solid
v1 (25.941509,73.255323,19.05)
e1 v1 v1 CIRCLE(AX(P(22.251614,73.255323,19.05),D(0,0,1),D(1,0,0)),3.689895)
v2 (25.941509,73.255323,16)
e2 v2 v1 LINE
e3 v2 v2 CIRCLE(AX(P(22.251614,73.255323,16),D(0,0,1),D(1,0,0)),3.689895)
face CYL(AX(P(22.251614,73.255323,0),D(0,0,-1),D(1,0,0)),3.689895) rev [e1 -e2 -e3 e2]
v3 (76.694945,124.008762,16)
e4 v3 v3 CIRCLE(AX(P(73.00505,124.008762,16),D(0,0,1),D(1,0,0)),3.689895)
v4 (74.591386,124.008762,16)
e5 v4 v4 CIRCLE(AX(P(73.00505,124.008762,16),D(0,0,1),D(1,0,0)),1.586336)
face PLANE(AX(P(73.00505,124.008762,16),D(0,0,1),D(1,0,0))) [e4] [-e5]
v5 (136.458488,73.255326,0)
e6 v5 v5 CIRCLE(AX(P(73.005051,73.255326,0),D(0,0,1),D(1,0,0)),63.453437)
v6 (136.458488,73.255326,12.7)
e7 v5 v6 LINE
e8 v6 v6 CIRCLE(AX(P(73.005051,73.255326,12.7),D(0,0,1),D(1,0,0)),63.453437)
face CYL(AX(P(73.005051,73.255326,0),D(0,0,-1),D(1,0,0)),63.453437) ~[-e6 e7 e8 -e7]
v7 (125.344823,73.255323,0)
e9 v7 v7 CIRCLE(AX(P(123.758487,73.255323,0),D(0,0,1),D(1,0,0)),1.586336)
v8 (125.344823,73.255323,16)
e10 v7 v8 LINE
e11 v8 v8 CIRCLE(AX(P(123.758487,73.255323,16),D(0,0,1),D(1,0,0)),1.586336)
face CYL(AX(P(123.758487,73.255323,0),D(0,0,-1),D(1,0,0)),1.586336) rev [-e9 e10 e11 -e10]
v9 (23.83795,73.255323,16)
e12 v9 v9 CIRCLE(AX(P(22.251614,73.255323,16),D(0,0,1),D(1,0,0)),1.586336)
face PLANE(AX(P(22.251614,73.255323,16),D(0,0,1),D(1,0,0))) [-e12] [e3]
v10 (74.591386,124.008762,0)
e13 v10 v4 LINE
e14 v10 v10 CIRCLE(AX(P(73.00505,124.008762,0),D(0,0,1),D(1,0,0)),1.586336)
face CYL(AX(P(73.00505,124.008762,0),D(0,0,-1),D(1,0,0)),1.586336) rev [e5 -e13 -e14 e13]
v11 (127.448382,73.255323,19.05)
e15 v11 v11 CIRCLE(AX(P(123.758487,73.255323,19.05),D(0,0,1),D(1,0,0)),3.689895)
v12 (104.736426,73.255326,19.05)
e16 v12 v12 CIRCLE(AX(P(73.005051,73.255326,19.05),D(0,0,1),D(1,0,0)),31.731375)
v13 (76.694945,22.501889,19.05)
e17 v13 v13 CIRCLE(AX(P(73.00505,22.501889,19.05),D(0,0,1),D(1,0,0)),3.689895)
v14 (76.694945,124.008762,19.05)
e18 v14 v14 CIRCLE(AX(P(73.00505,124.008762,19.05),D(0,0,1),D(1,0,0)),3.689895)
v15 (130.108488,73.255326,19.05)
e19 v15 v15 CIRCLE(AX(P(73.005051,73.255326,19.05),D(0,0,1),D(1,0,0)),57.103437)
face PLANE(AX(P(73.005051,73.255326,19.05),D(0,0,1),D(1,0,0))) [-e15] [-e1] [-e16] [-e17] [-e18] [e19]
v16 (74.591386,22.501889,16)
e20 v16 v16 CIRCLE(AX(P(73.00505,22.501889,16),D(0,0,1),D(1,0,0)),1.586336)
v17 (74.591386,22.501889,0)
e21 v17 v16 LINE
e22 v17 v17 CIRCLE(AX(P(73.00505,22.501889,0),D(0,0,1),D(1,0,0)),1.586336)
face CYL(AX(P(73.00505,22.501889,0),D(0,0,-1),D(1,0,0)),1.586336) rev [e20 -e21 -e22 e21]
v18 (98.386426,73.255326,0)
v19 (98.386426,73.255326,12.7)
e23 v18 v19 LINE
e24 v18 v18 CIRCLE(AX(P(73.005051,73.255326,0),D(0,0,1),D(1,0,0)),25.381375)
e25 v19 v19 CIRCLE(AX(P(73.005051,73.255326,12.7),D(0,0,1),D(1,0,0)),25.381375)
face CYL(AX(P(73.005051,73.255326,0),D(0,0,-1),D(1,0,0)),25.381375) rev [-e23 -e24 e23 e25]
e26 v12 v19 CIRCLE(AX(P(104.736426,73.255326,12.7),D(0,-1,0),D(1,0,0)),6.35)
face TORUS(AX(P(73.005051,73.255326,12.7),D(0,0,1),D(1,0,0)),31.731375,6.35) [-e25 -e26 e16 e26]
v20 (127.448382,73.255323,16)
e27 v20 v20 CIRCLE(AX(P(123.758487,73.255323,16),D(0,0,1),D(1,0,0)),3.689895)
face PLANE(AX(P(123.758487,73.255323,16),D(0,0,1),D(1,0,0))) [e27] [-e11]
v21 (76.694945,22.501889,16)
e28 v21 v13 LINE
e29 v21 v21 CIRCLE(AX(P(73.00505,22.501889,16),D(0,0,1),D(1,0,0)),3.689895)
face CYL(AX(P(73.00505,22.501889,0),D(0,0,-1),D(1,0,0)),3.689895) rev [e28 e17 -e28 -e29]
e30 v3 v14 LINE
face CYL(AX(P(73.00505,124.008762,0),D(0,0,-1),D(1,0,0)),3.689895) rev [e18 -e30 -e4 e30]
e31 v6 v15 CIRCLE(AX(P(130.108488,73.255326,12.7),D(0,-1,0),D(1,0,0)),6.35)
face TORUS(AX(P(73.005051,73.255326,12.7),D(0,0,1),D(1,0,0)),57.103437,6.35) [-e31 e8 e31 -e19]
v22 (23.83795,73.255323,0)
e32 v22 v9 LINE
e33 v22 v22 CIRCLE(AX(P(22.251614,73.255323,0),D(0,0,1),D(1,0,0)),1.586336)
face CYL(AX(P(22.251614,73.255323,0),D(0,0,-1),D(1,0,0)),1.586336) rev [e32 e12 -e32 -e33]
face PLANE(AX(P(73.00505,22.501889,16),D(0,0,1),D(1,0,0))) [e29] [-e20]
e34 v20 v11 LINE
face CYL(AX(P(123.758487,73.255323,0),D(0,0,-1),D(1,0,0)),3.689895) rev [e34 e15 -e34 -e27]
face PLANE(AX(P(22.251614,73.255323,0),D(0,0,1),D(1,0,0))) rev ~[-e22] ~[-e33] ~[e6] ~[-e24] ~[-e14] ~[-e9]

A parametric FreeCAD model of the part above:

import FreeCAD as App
import Part
import Sketcher
Q = App.Units.Quantity


def edges_at(feature, points):
    """Names of the edges that pass closest to the given points."""
    edges = feature.Shape.Edges
    near = lambda p: min(range(len(edges)), key=lambda i: edges[i].distToShape(Part.Vertex(*p))[0])
    return sorted({f"Edge{near(p) + 1}" for p in points})

doc = App.newDocument("Part")
body = doc.addObject("PartDesign::Body", "Body")

# Sketch on XY plane
sketch1 = body.newObject("Sketcher::SketchObject", "Sketch")
sketch1.AttachmentSupport = (doc.getObject("XY_Plane"), [""])
sketch1.MapMode = "FlatFace"
sketch1.addGeometry([
    Part.Circle(App.Vector(73, 73.3, 0), App.Vector(0, 0, 1), 63.5),  # 0
    Part.Circle(App.Vector(73, 22.5, 0), App.Vector(0, 0, 1), 3.7),  # 1
    Part.Circle(App.Vector(22.3, 73.3, 0), App.Vector(0, 0, 1), 3.7),  # 2
    Part.Circle(App.Vector(123.8, 73.3, 0), App.Vector(0, 0, 1), 3.7),  # 3
    Part.Circle(App.Vector(73, 124, 0), App.Vector(0, 0, 1), 3.7),  # 4
    Part.Circle(App.Vector(73, 73.3, 0), App.Vector(0, 0, 1), 25.4),  # 5
], False)
sketch1.addConstraint([
    Sketcher.Constraint("Coincident", 5, 3, 0, 3),
    Sketcher.Constraint("Equal", 1, 2),
    Sketcher.Constraint("Equal", 2, 3),
    Sketcher.Constraint("Equal", 3, 4),
    Sketcher.Constraint("Horizontal", 2, 3, 3, 3),
    Sketcher.Constraint("Vertical", 0, 3, 1, 3),
    Sketcher.Constraint("Vertical", 1, 3, 4, 3),
    Sketcher.Constraint("Diameter", 1, Q("7.37979 mm")),
    Sketcher.Constraint("Diameter", 5, Q("50.76275 mm")),
    Sketcher.Constraint("Diameter", 0, Q("126.906874 mm")),
    Sketcher.Constraint("DistanceX", -1, 1, 0, 3, Q("73.005051 mm")),
    Sketcher.Constraint("DistanceY", -1, 1, 1, 3, Q("22.501889 mm")),
    Sketcher.Constraint("DistanceY", 2, 3, 4, 3, Q("50.753439 mm")),
    Sketcher.Constraint("DistanceY", -1, 1, 0, 3, Q("73.255326 mm")),
    Sketcher.Constraint("DistanceX", -1, 1, 2, 3, Q("22.251614 mm")),
    Sketcher.Constraint("DistanceY", -1, 1, 2, 3, Q("73.255323 mm")),
    Sketcher.Constraint("DistanceX", -1, 1, 3, 3, Q("123.758487 mm")),
])
pad1 = body.newObject("PartDesign::Pad", "Pad")
pad1.Profile = sketch1
pad1.Length = Q("0.75 in")

# Sketch on XY plane
sketch2 = body.newObject("Sketcher::SketchObject", "Sketch001")
sketch2.AttachmentSupport = (doc.getObject("XY_Plane"), [""])
sketch2.MapMode = "FlatFace"
sketch2.addGeometry([
    Part.Circle(App.Vector(22.3, 73.3, 0), App.Vector(0, 0, 1), 3.7),  # 0
    Part.Circle(App.Vector(22.3, 73.3, 0), App.Vector(0, 0, 1), 1.6),  # 1
    Part.Circle(App.Vector(73, 22.5, 0), App.Vector(0, 0, 1), 3.7),  # 2
    Part.Circle(App.Vector(73, 22.5, 0), App.Vector(0, 0, 1), 1.6),  # 3
    Part.Circle(App.Vector(123.8, 73.3, 0), App.Vector(0, 0, 1), 3.7),  # 4
    Part.Circle(App.Vector(123.8, 73.3, 0), App.Vector(0, 0, 1), 1.6),  # 5
    Part.Circle(App.Vector(73, 124, 0), App.Vector(0, 0, 1), 3.7),  # 6
    Part.Circle(App.Vector(73, 124, 0), App.Vector(0, 0, 1), 1.6),  # 7
], False)
sketch2.addConstraint([
    Sketcher.Constraint("Coincident", 1, 3, 0, 3),
    Sketcher.Constraint("Coincident", 3, 3, 2, 3),
    Sketcher.Constraint("Coincident", 5, 3, 4, 3),
    Sketcher.Constraint("Coincident", 7, 3, 6, 3),
    Sketcher.Constraint("Equal", 0, 2),
    Sketcher.Constraint("Equal", 1, 3),
    Sketcher.Constraint("Equal", 2, 4),
    Sketcher.Constraint("Equal", 3, 5),
    Sketcher.Constraint("Equal", 4, 6),
    Sketcher.Constraint("Equal", 5, 7),
    Sketcher.Constraint("Horizontal", 1, 3, 4, 3),
    Sketcher.Constraint("Vertical", 3, 3, 6, 3),
    Sketcher.Constraint("Diameter", 0, Q("7.37979 mm")),
    Sketcher.Constraint("Diameter", 1, Q("3.172672 mm")),
    Sketcher.Constraint("DistanceX", -1, 1, 2, 3, Q("73.00505 mm")),
    Sketcher.Constraint("DistanceY", -1, 1, 2, 3, Q("22.501889 mm")),
    Sketcher.Constraint("DistanceY", 0, 3, 6, 3, Q("50.753439 mm")),
    Sketcher.Constraint("DistanceX", -1, 1, 0, 3, Q("22.251614 mm")),
    Sketcher.Constraint("DistanceY", -1, 1, 0, 3, Q("73.255323 mm")),
    Sketcher.Constraint("DistanceX", -1, 1, 4, 3, Q("123.758487 mm")),
])
pad2 = body.newObject("PartDesign::Pad", "Pad001")
pad2.Profile = sketch2
pad2.Length = 16
doc.recompute()

fillet = body.newObject("PartDesign::Fillet", "Fillet")
fillet.Base = (pad2, edges_at(pad2, [(9.552, 73.255, 19.05)]))
fillet.Radius = Q("0.25 in")
doc.recompute()

fillet2 = body.newObject("PartDesign::Fillet", "Fillet001")
fillet2.Base = (fillet, edges_at(fillet, [(47.624, 73.255, 19.05)]))
fillet2.Radius = Q("0.25 in")

doc.recompute()
